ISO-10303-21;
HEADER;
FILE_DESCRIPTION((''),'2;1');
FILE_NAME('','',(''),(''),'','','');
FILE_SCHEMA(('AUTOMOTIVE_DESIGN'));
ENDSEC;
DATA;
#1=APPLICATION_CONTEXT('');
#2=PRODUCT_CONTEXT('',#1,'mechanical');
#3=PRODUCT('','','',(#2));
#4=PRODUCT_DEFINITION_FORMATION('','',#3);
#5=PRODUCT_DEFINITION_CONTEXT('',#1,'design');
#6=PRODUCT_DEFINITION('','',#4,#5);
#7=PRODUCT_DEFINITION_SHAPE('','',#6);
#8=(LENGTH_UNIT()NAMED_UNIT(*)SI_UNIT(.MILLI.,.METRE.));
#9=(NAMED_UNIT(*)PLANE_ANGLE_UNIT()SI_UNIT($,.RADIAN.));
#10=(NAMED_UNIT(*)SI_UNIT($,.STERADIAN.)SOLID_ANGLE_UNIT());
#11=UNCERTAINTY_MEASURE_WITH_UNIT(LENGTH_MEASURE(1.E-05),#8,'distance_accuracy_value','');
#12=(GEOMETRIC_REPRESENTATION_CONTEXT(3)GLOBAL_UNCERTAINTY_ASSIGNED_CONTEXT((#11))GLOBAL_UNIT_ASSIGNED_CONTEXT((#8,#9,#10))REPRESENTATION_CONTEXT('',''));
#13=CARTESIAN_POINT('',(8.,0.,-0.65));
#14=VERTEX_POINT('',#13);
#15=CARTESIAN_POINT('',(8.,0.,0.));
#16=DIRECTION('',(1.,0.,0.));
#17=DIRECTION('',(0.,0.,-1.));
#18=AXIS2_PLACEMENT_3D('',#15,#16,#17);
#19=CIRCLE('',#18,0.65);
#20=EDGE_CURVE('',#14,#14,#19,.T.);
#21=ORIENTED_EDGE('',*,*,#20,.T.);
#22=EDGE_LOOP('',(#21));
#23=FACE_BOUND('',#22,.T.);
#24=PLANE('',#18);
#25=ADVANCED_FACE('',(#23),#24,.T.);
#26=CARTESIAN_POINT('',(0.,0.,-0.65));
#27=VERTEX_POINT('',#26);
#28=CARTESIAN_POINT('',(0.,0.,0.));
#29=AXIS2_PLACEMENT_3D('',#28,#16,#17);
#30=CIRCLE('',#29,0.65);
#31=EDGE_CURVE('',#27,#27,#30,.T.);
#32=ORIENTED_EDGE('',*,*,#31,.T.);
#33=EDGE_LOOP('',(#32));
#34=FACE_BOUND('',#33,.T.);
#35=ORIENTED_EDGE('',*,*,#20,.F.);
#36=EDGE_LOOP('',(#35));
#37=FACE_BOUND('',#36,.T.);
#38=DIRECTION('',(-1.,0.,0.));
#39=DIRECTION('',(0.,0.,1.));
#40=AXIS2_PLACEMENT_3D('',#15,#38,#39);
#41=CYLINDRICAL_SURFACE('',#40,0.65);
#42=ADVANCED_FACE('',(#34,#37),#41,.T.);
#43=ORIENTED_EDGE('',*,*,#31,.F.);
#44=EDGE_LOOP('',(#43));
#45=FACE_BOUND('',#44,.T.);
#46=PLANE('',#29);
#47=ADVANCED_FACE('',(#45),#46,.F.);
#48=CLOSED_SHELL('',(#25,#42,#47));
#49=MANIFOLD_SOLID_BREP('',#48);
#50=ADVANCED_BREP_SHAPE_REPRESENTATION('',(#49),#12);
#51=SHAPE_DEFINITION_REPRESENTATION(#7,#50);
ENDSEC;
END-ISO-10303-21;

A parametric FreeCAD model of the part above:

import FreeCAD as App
import Part
import Sketcher
from FreeCAD import Vector

doc = App.newDocument("Part")
params = doc.addObject("Spreadsheet::Sheet", "Params")
for row, (alias, value) in enumerate([
    ("sketch1_diameter", "1.3 mm"),
    ("pad1_length", "8 mm"),
], start=1):
    params.set(f"A{row}", alias)
    params.set(f"B{row}", "=" + value)
    params.setAlias(f"B{row}", alias)

body = doc.addObject("PartDesign::Body", "Body")

sketch1 = doc.addObject("Sketcher::SketchObject", "Sketch")
body.addObject(sketch1)
sketch1.AttachmentSupport = (doc.YZ_Plane, [""])
sketch1.MapMode = "FlatFace"
sketch1.addGeometry(Part.Circle(Vector(0, 0, 0), Vector(0, 0, 1), 0.7), False)
sketch1.addConstraint([
    Sketcher.Constraint("Coincident", 0, 3, -1, 1),
    Sketcher.Constraint("Diameter", 0, 1.3),
])
sketch1.setExpression("Constraints[1]", "Params.sketch1_diameter")
pad1 = doc.addObject("PartDesign::Pad", "Pad")
body.addObject(pad1)
pad1.Profile = sketch1
pad1.setExpression("Length", "Params.pad1_length")

doc.recompute()
